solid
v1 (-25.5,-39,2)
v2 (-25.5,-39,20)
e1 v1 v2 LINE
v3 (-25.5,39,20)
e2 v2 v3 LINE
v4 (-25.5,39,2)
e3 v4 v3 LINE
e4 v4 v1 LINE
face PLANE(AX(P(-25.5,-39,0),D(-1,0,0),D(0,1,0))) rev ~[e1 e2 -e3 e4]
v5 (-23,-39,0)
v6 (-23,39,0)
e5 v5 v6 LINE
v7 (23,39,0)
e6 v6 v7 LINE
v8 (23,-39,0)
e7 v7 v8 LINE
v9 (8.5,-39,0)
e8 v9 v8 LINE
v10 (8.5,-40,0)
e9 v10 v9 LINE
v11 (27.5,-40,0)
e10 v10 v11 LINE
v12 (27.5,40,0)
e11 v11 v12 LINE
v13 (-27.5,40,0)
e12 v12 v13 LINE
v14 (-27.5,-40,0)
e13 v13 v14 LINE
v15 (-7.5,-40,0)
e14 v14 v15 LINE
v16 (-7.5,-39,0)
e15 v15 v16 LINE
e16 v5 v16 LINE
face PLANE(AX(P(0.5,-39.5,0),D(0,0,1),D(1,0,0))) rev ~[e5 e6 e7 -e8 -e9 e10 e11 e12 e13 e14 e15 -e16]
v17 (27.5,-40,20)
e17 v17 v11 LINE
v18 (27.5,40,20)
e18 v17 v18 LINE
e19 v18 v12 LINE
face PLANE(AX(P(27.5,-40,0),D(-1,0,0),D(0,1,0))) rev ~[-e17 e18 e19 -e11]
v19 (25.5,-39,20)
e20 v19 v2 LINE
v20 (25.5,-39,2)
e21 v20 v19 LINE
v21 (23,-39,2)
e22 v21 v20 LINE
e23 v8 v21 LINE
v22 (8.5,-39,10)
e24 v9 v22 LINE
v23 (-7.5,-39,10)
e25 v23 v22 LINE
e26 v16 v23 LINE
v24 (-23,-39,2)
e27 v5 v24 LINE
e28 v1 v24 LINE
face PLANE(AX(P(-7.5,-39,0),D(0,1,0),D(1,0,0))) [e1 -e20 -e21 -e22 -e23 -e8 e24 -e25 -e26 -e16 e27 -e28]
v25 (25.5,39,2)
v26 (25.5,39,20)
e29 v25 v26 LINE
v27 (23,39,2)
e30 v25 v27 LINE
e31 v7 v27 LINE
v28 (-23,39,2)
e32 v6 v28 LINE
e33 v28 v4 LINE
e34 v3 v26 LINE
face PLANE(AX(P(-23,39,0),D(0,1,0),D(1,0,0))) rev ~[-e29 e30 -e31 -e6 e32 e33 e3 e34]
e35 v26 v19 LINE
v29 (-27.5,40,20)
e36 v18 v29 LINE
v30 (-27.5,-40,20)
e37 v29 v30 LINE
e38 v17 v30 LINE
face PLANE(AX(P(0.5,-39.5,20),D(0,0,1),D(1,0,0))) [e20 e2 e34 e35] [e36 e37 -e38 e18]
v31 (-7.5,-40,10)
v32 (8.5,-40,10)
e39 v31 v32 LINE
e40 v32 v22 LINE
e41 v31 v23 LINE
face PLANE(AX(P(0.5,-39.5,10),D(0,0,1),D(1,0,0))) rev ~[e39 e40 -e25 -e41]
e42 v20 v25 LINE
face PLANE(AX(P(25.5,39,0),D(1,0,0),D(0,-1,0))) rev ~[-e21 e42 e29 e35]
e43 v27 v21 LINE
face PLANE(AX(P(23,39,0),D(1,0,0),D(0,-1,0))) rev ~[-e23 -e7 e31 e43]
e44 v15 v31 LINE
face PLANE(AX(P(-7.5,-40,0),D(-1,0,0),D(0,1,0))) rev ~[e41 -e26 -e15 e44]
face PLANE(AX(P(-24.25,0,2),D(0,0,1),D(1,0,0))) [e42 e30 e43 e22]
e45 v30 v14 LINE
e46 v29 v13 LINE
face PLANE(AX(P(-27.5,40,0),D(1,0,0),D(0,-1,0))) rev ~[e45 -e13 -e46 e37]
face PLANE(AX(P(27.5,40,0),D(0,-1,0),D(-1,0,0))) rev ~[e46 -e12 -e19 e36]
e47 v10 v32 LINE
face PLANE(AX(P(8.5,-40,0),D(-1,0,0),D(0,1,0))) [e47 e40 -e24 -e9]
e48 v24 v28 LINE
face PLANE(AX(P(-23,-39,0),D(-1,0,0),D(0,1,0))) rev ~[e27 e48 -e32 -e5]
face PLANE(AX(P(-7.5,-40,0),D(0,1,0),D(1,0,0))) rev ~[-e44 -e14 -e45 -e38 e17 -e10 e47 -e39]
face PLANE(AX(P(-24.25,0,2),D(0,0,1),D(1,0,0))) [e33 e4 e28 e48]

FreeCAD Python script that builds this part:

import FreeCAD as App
import Part
import Sketcher
from FreeCAD import Vector

doc = App.newDocument("Part")
params = doc.addObject("Spreadsheet::Sheet", "Params")
for row, (alias, value) in enumerate([
    ("sketch1_width", "46 mm"),
    ("sketch1_width2", "19 mm"),
    ("sketch1_width3", "55 mm"),
    ("sketch1_width4", "20 mm"),
    ("sketch1_height", "78 mm"),
    ("pad1_length", "2 mm"),
    ("sketch2_width", "17 mm"),
    ("sketch2_width2", "19 mm"),
    ("sketch2_width3", "55 mm"),
    ("sketch2_width4", "20 mm"),
    ("sketch2_height", "1 mm"),
    ("pad2_length", "20 mm"),
    ("sketch3_width", "16 mm"),
    ("sketch3_height", "1 mm"),
    ("pad3_length", "20 mm"),
    ("sketch4_width", "16 mm"),
    ("sketch4_height", "1 mm"),
    ("pocket1_length", "10 mm"),
], start=1):
    params.set(f"A{row}", alias)
    params.set(f"B{row}", "=" + value)
    params.setAlias(f"B{row}", alias)

body = doc.addObject("PartDesign::Body", "Body")

sketch1 = body.newObject("Sketcher::SketchObject", "Sketch")
sketch1.AttachmentSupport = (doc.getObject("XY_Plane"), [""])
sketch1.MapMode = "FlatFace"
sketch1.addGeometry([
    Part.LineSegment(Vector(-23, -39, 0), Vector(-23, 39, 0)),
    Part.LineSegment(Vector(-23, 39, 0), Vector(23, 39, 0)),
    Part.LineSegment(Vector(23, 39, 0), Vector(23, -39, 0)),
    Part.LineSegment(Vector(23, -39, 0), Vector(8.5, -39, 0)),
    Part.LineSegment(Vector(8.5, -39, 0), Vector(8.5, -40, 0)),
    Part.LineSegment(Vector(8.5, -40, 0), Vector(27.5, -40, 0)),
    Part.LineSegment(Vector(27.5, -40, 0), Vector(27.5, 40, 0)),
    Part.LineSegment(Vector(27.5, 40, 0), Vector(-27.5, 40, 0)),
    Part.LineSegment(Vector(-27.5, 40, 0), Vector(-27.5, -40, 0)),
    Part.LineSegment(Vector(-27.5, -40, 0), Vector(-7.5, -40, 0)),
    Part.LineSegment(Vector(-7.5, -40, 0), Vector(-7.5, -39, 0)),
    Part.LineSegment(Vector(-7.5, -39, 0), Vector(-23, -39, 0)),
], False)
sketch1.addConstraint([
    Sketcher.Constraint("Coincident", 0, 2, 1, 1),
    Sketcher.Constraint("Coincident", 1, 2, 2, 1),
    Sketcher.Constraint("Coincident", 2, 2, 3, 1),
    Sketcher.Constraint("Coincident", 3, 2, 4, 1),
    Sketcher.Constraint("Coincident", 4, 2, 5, 1),
    Sketcher.Constraint("Coincident", 5, 2, 6, 1),
    Sketcher.Constraint("Coincident", 6, 2, 7, 1),
    Sketcher.Constraint("Coincident", 7, 2, 8, 1),
    Sketcher.Constraint("Coincident", 8, 2, 9, 1),
    Sketcher.Constraint("Coincident", 9, 2, 10, 1),
    Sketcher.Constraint("Coincident", 10, 2, 11, 1),
    Sketcher.Constraint("Coincident", 11, 2, 0, 1),
    Sketcher.Constraint("Vertical", 0),
    Sketcher.Constraint("Horizontal", 1),
    Sketcher.Constraint("Vertical", 2),
    Sketcher.Constraint("Horizontal", 3),
    Sketcher.Constraint("Vertical", 4),
    Sketcher.Constraint("Horizontal", 5),
    Sketcher.Constraint("Vertical", 6),
    Sketcher.Constraint("Horizontal", 7),
    Sketcher.Constraint("Vertical", 8),
    Sketcher.Constraint("Horizontal", 9),
    Sketcher.Constraint("Vertical", 10),
    Sketcher.Constraint("Horizontal", 11),
    Sketcher.Constraint("Symmetric", 0, 2, 2, 2, -1, 1),
    Sketcher.Constraint("Symmetric", 5, 2, 7, 2, -1, 1),
    Sketcher.Constraint("Horizontal", 5, 2, 8, 2),
    Sketcher.Constraint("Horizontal", 3, 2, 10, 2),
    Sketcher.Constraint("DistanceX", 1, 1, 1, 2, 46.0),
    Sketcher.Constraint("DistanceX", 5, 1, 5, 2, 19.0),
    Sketcher.Constraint("DistanceX", 7, 2, 7, 1, 55.0),
    Sketcher.Constraint("DistanceX", 9, 1, 9, 2, 20.0),
    Sketcher.Constraint("DistanceY", 0, 1, 0, 2, 78.0),
    Sketcher.Constraint("DistanceY", 4, 2, 4, 1, 1.0),
])
sketch1.setExpression("Constraints[28]", "Params.sketch1_width")
sketch1.setExpression("Constraints[29]", "Params.sketch1_width2")
sketch1.setExpression("Constraints[30]", "Params.sketch1_width3")
sketch1.setExpression("Constraints[31]", "Params.sketch1_width4")
sketch1.setExpression("Constraints[32]", "Params.sketch1_height")
pad1 = body.newObject("PartDesign::Pad", "Pad")
pad1.Profile = sketch1
pad1.setExpression("Length", "Params.pad1_length")

sketch2 = body.newObject("Sketcher::SketchObject", "Sketch001")
sketch2.AttachmentSupport = (doc.getObject("XY_Plane"), [""])
sketch2.MapMode = "FlatFace"
sketch2.addGeometry([
    Part.LineSegment(Vector(25.5, -39, 0), Vector(8.5, -39, 0)),
    Part.LineSegment(Vector(8.5, -39, 0), Vector(8.5, -40, 0)),
    Part.LineSegment(Vector(8.5, -40, 0), Vector(27.5, -40, 0)),
    Part.LineSegment(Vector(27.5, -40, 0), Vector(27.5, 40, 0)),
    Part.LineSegment(Vector(27.5, 40, 0), Vector(-27.5, 40, 0)),
    Part.LineSegment(Vector(-27.5, 40, 0), Vector(-27.5, -40, 0)),
    Part.LineSegment(Vector(-27.5, -40, 0), Vector(-7.5, -40, 0)),
    Part.LineSegment(Vector(-7.5, -40, 0), Vector(-7.5, -39, 0)),
    Part.LineSegment(Vector(-7.5, -39, 0), Vector(-25.5, -39, 0)),
    Part.LineSegment(Vector(-25.5, -39, 0), Vector(-25.5, 39, 0)),
    Part.LineSegment(Vector(-25.5, 39, 0), Vector(25.5, 39, 0)),
    Part.LineSegment(Vector(25.5, 39, 0), Vector(25.5, -39, 0)),
], False)
sketch2.addConstraint([
    Sketcher.Constraint("Coincident", 0, 2, 1, 1),
    Sketcher.Constraint("Coincident", 1, 2, 2, 1),
    Sketcher.Constraint("Coincident", 2, 2, 3, 1),
    Sketcher.Constraint("Coincident", 3, 2, 4, 1),
    Sketcher.Constraint("Coincident", 4, 2, 5, 1),
    Sketcher.Constraint("Coincident", 5, 2, 6, 1),
    Sketcher.Constraint("Coincident", 6, 2, 7, 1),
    Sketcher.Constraint("Coincident", 7, 2, 8, 1),
    Sketcher.Constraint("Coincident", 8, 2, 9, 1),
    Sketcher.Constraint("Coincident", 9, 2, 10, 1),
    Sketcher.Constraint("Coincident", 10, 2, 11, 1),
    Sketcher.Constraint("Coincident", 11, 2, 0, 1),
    Sketcher.Constraint("Horizontal", 0),
    Sketcher.Constraint("Vertical", 1),
    Sketcher.Constraint("Horizontal", 2),
    Sketcher.Constraint("Vertical", 3),
    Sketcher.Constraint("Horizontal", 4),
    Sketcher.Constraint("Vertical", 5),
    Sketcher.Constraint("Horizontal", 6),
    Sketcher.Constraint("Vertical", 7),
    Sketcher.Constraint("Horizontal", 8),
    Sketcher.Constraint("Vertical", 9),
    Sketcher.Constraint("Horizontal", 10),
    Sketcher.Constraint("Vertical", 11),
    Sketcher.Constraint("Symmetric", 2, 2, 4, 2, -1, 1),
    Sketcher.Constraint("Symmetric", 8, 2, 10, 2, -1, 1),
    Sketcher.Constraint("Horizontal", 2, 2, 5, 2),
    Sketcher.Constraint("Horizontal", 0, 2, 7, 2),
    Sketcher.Constraint("DistanceX", 0, 2, 0, 1, 17.0),
    Sketcher.Constraint("DistanceX", 2, 1, 2, 2, 19.0),
    Sketcher.Constraint("DistanceX", 4, 2, 4, 1, 55.0),
    Sketcher.Constraint("DistanceX", 6, 1, 6, 2, 20.0),
    Sketcher.Constraint("DistanceY", 1, 2, 1, 1, 1.0),
    Sketcher.Constraint("DistanceY", 3, 1, 3, 2, 80.0),
])
sketch2.setExpression("Constraints[28]", "Params.sketch2_width")
sketch2.setExpression("Constraints[29]", "Params.sketch2_width2")
sketch2.setExpression("Constraints[30]", "Params.sketch2_width3")
sketch2.setExpression("Constraints[31]", "Params.sketch2_width4")
sketch2.setExpression("Constraints[32]", "Params.sketch2_height")
pad2 = body.newObject("PartDesign::Pad", "Pad001")
pad2.Profile = sketch2
pad2.setExpression("Length", "Params.pad2_length")

sketch3 = body.newObject("Sketcher::SketchObject", "Sketch002")
sketch3.AttachmentSupport = (doc.getObject("XY_Plane"), [""])
sketch3.MapMode = "FlatFace"
sketch3.addGeometry([
    Part.LineSegment(Vector(-7.5, -39, 0), Vector(-7.5, -40, 0)),
    Part.LineSegment(Vector(-7.5, -40, 0), Vector(8.5, -40, 0)),
    Part.LineSegment(Vector(8.5, -40, 0), Vector(8.5, -39, 0)),
    Part.LineSegment(Vector(8.5, -39, 0), Vector(-7.5, -39, 0)),
], False)
sketch3.addConstraint([
    Sketcher.Constraint("Coincident", 0, 2, 1, 1),
    Sketcher.Constraint("Coincident", 1, 2, 2, 1),
    Sketcher.Constraint("Coincident", 2, 2, 3, 1),
    Sketcher.Constraint("Coincident", 3, 2, 0, 1),
    Sketcher.Constraint("Vertical", 0),
    Sketcher.Constraint("Horizontal", 1),
    Sketcher.Constraint("Vertical", 2),
    Sketcher.Constraint("Horizontal", 3),
    Sketcher.Constraint("DistanceX", 1, 1, 1, 2, 16.0),
    Sketcher.Constraint("DistanceY", 0, 2, 0, 1, 1.0),
    Sketcher.Constraint("DistanceY", 0, 2, -1, 1, 40.0),
    Sketcher.Constraint("DistanceX", 0, 2, -1, 1, 7.5),
])
sketch3.setExpression("Constraints[8]", "Params.sketch3_width")
sketch3.setExpression("Constraints[9]", "Params.sketch3_height")
pad3 = body.newObject("PartDesign::Pad", "Pad002")
pad3.Profile = sketch3
pad3.setExpression("Length", "Params.pad3_length")

sketch4 = body.newObject("Sketcher::SketchObject", "Sketch003")
sketch4.AttachmentSupport = (doc.getObject("XY_Plane"), [""])
sketch4.MapMode = "FlatFace"
sketch4.addGeometry([
    Part.LineSegment(Vector(-7.5, -39, 0), Vector(-7.5, -40, 0)),
    Part.LineSegment(Vector(-7.5, -40, 0), Vector(8.5, -40, 0)),
    Part.LineSegment(Vector(8.5, -40, 0), Vector(8.5, -39, 0)),
    Part.LineSegment(Vector(8.5, -39, 0), Vector(-7.5, -39, 0)),
], False)
sketch4.addConstraint([
    Sketcher.Constraint("Coincident", 0, 2, 1, 1),
    Sketcher.Constraint("Coincident", 1, 2, 2, 1),
    Sketcher.Constraint("Coincident", 2, 2, 3, 1),
    Sketcher.Constraint("Coincident", 3, 2, 0, 1),
    Sketcher.Constraint("Vertical", 0),
    Sketcher.Constraint("Horizontal", 1),
    Sketcher.Constraint("Vertical", 2),
    Sketcher.Constraint("Horizontal", 3),
    Sketcher.Constraint("DistanceX", 1, 1, 1, 2, 16.0),
    Sketcher.Constraint("DistanceY", 0, 2, 0, 1, 1.0),
    Sketcher.Constraint("DistanceY", 0, 2, -1, 1, 40.0),
    Sketcher.Constraint("DistanceX", 0, 2, -1, 1, 7.5),
])
sketch4.setExpression("Constraints[8]", "Params.sketch4_width")
sketch4.setExpression("Constraints[9]", "Params.sketch4_height")
pocket1 = body.newObject("PartDesign::Pocket", "Pocket")
pocket1.Profile = sketch4
pocket1.setExpression("Length", "Params.pocket1_length")
pocket1.Reversed = True

doc.recompute()
